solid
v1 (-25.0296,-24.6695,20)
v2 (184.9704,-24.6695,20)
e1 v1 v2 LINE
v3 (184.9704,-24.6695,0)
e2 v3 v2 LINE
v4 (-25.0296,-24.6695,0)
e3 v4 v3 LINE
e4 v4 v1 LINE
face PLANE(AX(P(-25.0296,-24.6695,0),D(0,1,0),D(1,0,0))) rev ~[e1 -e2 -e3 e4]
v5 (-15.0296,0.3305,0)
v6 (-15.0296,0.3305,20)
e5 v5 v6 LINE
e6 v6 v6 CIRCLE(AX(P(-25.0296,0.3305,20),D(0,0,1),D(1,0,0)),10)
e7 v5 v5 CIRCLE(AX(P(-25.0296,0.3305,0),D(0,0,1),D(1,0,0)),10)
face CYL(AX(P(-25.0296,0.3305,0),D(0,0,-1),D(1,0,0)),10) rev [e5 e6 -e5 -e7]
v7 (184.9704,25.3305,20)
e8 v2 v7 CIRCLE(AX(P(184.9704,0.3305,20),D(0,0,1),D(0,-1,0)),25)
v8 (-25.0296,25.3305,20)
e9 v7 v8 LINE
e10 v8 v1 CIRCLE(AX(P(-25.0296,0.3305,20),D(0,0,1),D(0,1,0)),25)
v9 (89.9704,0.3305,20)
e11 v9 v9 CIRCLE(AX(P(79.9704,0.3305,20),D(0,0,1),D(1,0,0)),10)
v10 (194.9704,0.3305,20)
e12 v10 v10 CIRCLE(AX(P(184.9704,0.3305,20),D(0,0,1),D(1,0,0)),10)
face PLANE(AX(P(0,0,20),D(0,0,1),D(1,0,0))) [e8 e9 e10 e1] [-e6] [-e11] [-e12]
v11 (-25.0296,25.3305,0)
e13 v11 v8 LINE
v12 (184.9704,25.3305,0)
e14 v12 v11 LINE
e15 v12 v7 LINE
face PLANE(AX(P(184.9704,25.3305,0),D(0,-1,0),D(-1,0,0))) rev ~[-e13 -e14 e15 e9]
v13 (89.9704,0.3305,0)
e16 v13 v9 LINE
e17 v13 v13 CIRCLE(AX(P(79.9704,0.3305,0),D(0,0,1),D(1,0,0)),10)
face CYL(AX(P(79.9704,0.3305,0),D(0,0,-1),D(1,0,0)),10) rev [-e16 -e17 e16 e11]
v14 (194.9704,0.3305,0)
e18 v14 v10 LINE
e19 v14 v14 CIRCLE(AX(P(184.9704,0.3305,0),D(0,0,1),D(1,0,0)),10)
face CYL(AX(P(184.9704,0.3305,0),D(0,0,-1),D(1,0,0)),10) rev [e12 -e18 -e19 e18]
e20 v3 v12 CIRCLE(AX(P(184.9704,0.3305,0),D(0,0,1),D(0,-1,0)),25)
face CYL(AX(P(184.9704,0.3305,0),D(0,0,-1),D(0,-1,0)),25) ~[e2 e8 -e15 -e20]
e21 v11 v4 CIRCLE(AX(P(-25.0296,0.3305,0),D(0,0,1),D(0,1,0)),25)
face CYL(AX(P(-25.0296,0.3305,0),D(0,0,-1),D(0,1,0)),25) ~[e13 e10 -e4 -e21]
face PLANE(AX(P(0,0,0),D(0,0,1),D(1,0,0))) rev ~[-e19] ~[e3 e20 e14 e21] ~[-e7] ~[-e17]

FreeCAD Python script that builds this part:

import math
import FreeCAD as App
import Part
import Sketcher
Q = App.Units.Quantity

doc = App.newDocument("Part")
body = doc.addObject("PartDesign::Body", "Body")

# Sketch on XY plane
sketch1 = body.newObject("Sketcher::SketchObject", "Sketch")
sketch1.AttachmentSupport = (doc.getObject("XY_Plane"), [""])
sketch1.MapMode = "FlatFace"
sketch1.addGeometry([
    Part.ArcOfCircle(Part.Circle(App.Vector(-25, 0, 0), App.Vector(0, 0, 1), 25), math.radians(90), math.radians(270)),  # 0
    Part.LineSegment(App.Vector(-25, -25, 0), App.Vector(185, -25, 0)),  # 1
    Part.ArcOfCircle(Part.Circle(App.Vector(185, 0, 0), App.Vector(0, 0, 1), 25), math.radians(-90), math.radians(90)),  # 2
    Part.LineSegment(App.Vector(185, 25, 0), App.Vector(-25, 25, 0)),  # 3
    Part.Circle(App.Vector(-25, 0, 0), App.Vector(0, 0, 1), 10),  # 4
    Part.Circle(App.Vector(80, 0, 0), App.Vector(0, 0, 1), 10),  # 5
    Part.Circle(App.Vector(185, 0, 0), App.Vector(0, 0, 1), 10),  # 6
], False)
sketch1.addConstraint([
    Sketcher.Constraint("Tangent", 0, 2, 1, 1),
    Sketcher.Constraint("Tangent", 1, 2, 2, 1),
    Sketcher.Constraint("Tangent", 2, 2, 3, 1),
    Sketcher.Constraint("Tangent", 3, 2, 0, 1),
    Sketcher.Constraint("Horizontal", 1),
    Sketcher.Constraint("Horizontal", 3),
    Sketcher.Constraint("Coincident", 4, 3, 0, 3),
    Sketcher.Constraint("Coincident", 6, 3, 2, 3),
    Sketcher.Constraint("Equal", 4, 5),
    Sketcher.Constraint("Equal", 5, 6),
    Sketcher.Constraint("Horizontal", 4, 3, 5, 3),
    Sketcher.Constraint("Diameter", 4, Q("20 mm")),
    Sketcher.Constraint("Radius", 0, Q("25 mm")),
    Sketcher.Constraint("DistanceX", 1, 1, 1, 2, Q("210 mm")),
    Sketcher.Constraint("DistanceX", 0, 3, 5, 3, Q("105 mm")),
    Sketcher.Constraint("DistanceX", 0, 3, -1, 1, Q("25.0296 mm")),
    Sketcher.Constraint("DistanceY", -1, 1, 0, 3, Q("0.3305 mm")),
])
pad1 = body.newObject("PartDesign::Pad", "Pad")
pad1.Profile = sketch1
pad1.Length = 20

doc.recompute()
